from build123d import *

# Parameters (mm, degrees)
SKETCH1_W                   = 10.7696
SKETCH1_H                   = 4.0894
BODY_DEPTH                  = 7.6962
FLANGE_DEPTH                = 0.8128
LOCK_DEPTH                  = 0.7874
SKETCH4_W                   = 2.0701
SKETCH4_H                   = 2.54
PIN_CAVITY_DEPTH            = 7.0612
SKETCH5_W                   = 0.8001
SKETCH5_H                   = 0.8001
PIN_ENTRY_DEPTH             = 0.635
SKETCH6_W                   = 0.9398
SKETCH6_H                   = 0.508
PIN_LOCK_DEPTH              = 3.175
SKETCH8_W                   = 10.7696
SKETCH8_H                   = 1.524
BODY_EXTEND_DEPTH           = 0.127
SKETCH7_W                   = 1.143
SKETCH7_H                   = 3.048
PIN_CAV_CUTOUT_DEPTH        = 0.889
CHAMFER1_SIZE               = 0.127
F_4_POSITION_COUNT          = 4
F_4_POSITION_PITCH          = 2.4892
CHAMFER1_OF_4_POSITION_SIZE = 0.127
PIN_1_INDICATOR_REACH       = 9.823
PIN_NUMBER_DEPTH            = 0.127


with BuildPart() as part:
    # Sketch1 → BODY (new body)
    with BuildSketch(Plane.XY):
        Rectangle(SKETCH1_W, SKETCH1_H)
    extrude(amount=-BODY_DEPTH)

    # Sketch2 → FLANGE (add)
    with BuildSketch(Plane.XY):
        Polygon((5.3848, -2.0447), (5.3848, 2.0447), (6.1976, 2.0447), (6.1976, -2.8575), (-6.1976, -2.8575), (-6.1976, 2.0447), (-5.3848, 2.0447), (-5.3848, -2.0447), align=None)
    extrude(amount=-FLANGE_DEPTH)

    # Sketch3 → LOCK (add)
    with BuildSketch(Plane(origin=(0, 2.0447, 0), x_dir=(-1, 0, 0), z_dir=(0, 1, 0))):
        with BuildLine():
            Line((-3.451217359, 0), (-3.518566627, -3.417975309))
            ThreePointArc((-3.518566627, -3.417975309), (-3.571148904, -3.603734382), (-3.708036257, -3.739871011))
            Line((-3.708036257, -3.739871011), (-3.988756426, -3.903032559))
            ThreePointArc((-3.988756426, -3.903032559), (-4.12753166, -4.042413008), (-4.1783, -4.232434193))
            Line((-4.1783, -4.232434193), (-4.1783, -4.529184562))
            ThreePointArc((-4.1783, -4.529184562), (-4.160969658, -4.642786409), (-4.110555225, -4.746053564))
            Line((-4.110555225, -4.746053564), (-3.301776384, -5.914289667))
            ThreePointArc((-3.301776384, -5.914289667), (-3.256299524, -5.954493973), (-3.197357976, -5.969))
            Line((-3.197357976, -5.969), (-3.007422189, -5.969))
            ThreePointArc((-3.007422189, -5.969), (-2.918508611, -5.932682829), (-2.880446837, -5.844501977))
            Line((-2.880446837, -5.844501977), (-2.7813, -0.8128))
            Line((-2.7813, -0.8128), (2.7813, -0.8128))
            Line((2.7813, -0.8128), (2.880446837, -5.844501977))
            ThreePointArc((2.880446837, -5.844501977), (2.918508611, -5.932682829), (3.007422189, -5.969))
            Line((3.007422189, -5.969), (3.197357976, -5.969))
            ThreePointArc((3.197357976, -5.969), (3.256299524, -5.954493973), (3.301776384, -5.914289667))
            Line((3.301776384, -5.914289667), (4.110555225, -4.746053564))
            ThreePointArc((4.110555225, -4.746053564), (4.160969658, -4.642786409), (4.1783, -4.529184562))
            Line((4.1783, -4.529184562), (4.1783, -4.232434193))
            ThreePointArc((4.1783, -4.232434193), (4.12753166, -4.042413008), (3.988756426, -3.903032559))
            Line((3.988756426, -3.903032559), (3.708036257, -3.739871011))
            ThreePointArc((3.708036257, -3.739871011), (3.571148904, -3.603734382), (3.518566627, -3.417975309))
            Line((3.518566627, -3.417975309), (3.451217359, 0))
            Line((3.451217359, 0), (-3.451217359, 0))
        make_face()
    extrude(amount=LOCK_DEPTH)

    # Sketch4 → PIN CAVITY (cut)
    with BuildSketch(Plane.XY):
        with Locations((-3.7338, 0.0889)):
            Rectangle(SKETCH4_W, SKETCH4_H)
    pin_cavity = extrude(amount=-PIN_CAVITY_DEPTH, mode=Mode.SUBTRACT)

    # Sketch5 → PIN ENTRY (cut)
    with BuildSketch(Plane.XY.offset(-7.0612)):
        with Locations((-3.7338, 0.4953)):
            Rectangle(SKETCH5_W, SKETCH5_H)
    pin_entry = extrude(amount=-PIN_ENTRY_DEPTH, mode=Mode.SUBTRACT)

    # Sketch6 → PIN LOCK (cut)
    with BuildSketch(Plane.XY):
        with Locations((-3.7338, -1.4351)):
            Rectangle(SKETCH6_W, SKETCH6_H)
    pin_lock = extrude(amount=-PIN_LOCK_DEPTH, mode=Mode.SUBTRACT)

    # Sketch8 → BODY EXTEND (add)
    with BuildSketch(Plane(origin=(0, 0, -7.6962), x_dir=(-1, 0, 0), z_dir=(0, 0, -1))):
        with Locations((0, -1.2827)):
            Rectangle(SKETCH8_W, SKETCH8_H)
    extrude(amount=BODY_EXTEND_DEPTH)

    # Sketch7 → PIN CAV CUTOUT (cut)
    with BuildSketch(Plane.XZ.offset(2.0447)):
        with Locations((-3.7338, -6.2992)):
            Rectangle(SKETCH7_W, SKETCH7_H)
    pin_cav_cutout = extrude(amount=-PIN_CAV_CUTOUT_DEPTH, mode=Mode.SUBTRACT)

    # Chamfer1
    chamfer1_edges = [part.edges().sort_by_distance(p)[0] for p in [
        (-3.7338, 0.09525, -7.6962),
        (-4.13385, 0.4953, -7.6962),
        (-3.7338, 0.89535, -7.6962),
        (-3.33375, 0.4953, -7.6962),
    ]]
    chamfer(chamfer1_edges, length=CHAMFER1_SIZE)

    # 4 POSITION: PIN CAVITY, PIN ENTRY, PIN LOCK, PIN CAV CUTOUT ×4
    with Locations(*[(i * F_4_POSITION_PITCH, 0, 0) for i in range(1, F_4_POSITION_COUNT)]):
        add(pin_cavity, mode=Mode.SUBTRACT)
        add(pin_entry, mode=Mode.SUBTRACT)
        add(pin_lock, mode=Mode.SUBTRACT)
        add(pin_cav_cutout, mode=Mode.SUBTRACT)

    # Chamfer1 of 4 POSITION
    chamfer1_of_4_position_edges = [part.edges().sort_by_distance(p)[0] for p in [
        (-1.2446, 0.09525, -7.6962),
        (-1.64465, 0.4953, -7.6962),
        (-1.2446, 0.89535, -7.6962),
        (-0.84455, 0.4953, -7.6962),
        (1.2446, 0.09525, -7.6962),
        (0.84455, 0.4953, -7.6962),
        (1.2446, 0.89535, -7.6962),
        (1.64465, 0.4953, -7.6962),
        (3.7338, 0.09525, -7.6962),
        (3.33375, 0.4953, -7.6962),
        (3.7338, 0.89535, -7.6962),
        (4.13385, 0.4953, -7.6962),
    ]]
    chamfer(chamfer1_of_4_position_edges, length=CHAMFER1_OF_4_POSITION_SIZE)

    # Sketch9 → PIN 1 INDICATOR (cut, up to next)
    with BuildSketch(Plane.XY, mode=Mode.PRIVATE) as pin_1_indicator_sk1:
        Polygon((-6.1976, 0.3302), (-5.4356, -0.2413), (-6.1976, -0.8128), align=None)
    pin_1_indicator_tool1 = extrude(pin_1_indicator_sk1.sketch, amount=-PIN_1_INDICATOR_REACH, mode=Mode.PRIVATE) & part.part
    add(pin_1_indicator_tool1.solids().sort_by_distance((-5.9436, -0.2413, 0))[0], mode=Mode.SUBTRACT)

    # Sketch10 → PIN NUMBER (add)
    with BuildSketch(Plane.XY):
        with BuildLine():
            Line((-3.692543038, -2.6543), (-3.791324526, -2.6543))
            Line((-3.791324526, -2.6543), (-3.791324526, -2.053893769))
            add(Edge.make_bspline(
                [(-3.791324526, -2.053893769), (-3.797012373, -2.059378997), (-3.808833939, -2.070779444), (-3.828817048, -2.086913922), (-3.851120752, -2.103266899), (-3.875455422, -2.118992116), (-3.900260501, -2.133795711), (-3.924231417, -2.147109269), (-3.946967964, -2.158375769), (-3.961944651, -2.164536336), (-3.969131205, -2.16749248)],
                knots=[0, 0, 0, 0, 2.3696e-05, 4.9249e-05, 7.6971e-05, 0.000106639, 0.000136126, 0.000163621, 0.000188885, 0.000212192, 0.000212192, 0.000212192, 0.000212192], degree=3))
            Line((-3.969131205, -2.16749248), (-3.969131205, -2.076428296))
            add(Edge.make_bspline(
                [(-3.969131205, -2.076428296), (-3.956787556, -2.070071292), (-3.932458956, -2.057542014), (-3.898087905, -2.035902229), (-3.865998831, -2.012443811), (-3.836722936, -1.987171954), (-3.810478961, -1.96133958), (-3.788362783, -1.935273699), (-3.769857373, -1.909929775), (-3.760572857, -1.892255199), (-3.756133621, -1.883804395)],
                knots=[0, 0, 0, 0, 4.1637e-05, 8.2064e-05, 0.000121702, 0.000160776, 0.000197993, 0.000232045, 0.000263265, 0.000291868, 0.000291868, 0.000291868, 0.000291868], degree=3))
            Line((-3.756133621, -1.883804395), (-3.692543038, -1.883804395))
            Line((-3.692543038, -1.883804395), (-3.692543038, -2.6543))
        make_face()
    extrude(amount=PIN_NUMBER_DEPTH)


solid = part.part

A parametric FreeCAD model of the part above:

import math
import FreeCAD as App
import Part
import Sketcher

V = App.Vector
Q = App.Units.Quantity


def edges_at(feature, points):
    """Names of the edges that pass closest to the given points."""
    edges = feature.Shape.Edges
    near = lambda p: min(range(len(edges)), key=lambda i: edges[i].distToShape(Part.Vertex(*p))[0])
    return sorted({f"Edge{near(p) + 1}" for p in points})

doc = App.newDocument("Part")
body = doc.addObject("PartDesign::Body", "Body")

# Sketch on XY plane
sketch1 = doc.addObject("Sketcher::SketchObject", "Sketch")
body.addObject(sketch1)
sketch1.AttachmentSupport = (doc.XY_Plane, [""])
sketch1.MapMode = "FlatFace"
sketch1.addGeometry([
    Part.LineSegment(V(-5.4, 2, 0), V(-5.4, -2, 0)),
    Part.LineSegment(V(-5.4, -2, 0), V(5.4, -2, 0)),
    Part.LineSegment(V(5.4, -2, 0), V(5.4, 2, 0)),
    Part.LineSegment(V(5.4, 2, 0), V(-5.4, 2, 0)),
], False)
sketch1.addConstraint([
    Sketcher.Constraint("Coincident", 0, 2, 1, 1),
    Sketcher.Constraint("Coincident", 1, 2, 2, 1),
    Sketcher.Constraint("Coincident", 2, 2, 3, 1),
    Sketcher.Constraint("Coincident", 3, 2, 0, 1),
    Sketcher.Constraint("Vertical", 0),
    Sketcher.Constraint("Horizontal", 1),
    Sketcher.Constraint("Vertical", 2),
    Sketcher.Constraint("Horizontal", 3),
    Sketcher.Constraint("Symmetric", 0, 2, 2, 2, -1, 1),
    Sketcher.Constraint("DistanceX", 1, 1, 1, 2, Q("0.424 in")),
    Sketcher.Constraint("DistanceY", 0, 2, 0, 1, Q("0.161 in")),
])
pad1 = doc.addObject("PartDesign::Pad", "Pad")
body.addObject(pad1)
pad1.Profile = sketch1
pad1.Length = Q("0.303 in")
pad1.Reversed = True

# Sketch on XY plane
sketch2 = doc.addObject("Sketcher::SketchObject", "Sketch001")
body.addObject(sketch2)
sketch2.AttachmentSupport = (doc.XY_Plane, [""])
sketch2.MapMode = "FlatFace"
sketch2.addGeometry([
    Part.LineSegment(V(5.4, 2, 0), V(5.4, -2, 0)),  # 0
    Part.LineSegment(V(5.4, -2, 0), V(-5.4, -2, 0)),  # 1
    Part.LineSegment(V(-5.4, -2, 0), V(-5.4, 2, 0)),  # 2
    Part.LineSegment(V(-5.4, 2, 0), V(-6.2, 2, 0)),  # 3
    Part.LineSegment(V(-6.2, 2, 0), V(-6.2, -2.9, 0)),  # 4
    Part.LineSegment(V(-6.2, -2.9, 0), V(6.2, -2.9, 0)),  # 5
    Part.LineSegment(V(6.2, -2.9, 0), V(6.2, 2, 0)),  # 6
    Part.LineSegment(V(6.2, 2, 0), V(5.4, 2, 0)),  # 7
], False)
sketch2.addConstraint([
    Sketcher.Constraint("Coincident", 0, 2, 1, 1),
    Sketcher.Constraint("Coincident", 1, 2, 2, 1),
    Sketcher.Constraint("Coincident", 2, 2, 3, 1),
    Sketcher.Constraint("Coincident", 3, 2, 4, 1),
    Sketcher.Constraint("Coincident", 4, 2, 5, 1),
    Sketcher.Constraint("Coincident", 5, 2, 6, 1),
    Sketcher.Constraint("Coincident", 6, 2, 7, 1),
    Sketcher.Constraint("Coincident", 7, 2, 0, 1),
    Sketcher.Constraint("Vertical", 0),
    Sketcher.Constraint("Horizontal", 1),
    Sketcher.Constraint("Vertical", 2),
    Sketcher.Constraint("Horizontal", 3),
    Sketcher.Constraint("Vertical", 4),
    Sketcher.Constraint("Horizontal", 5),
    Sketcher.Constraint("Vertical", 6),
    Sketcher.Constraint("Horizontal", 7),
    Sketcher.Constraint("Symmetric", 0, 2, 2, 2, -1, 1),
    Sketcher.Constraint("Symmetric", 3, 2, 6, 2, -2),
    Sketcher.Constraint("DistanceX", 1, 2, 1, 1, Q("0.424 in")),
    Sketcher.Constraint("DistanceX", 3, 2, 3, 1, Q("0.032 in")),
    Sketcher.Constraint("DistanceY", 0, 2, 0, 1, Q("0.161 in")),
    Sketcher.Constraint("DistanceY", 4, 2, 4, 1, Q("0.193 in")),
])
pad2 = doc.addObject("PartDesign::Pad", "Pad001")
body.addObject(pad2)
pad2.Profile = sketch2
pad2.Length = Q("0.032 in")
pad2.Reversed = True

# Sketch on XZ plane
sketch3 = doc.addObject("Sketcher::SketchObject", "Sketch002")
body.addObject(sketch3)
sketch3.AttachmentSupport = (doc.XZ_Plane, [""])
sketch3.MapMode = "FlatFace"
sketch3.AttachmentOffset = App.Placement(V(0, 0, -0.0805 * 25.4), App.Rotation())
sketch3.addGeometry([
    Part.LineSegment(V(3.45, 0, 0), V(3.52, -3.42, 0)),  # 0
    Part.ArcOfCircle(Part.Circle(V(3.9, -3.41, 0), V(0, 0, 1), 0.38), math.radians(-179), math.radians(-120)),  # 1
    Part.LineSegment(V(3.71, -3.74, 0), V(3.99, -3.9, 0)),  # 2
    Part.ArcOfCircle(Part.Circle(V(3.8, -4.23, 0), V(0, 0, 1), 0.38), math.radians(0), math.radians(60)),  # 3
    Part.LineSegment(V(4.18, -4.23, 0), V(4.18, -4.53, 0)),  # 4
    Part.ArcOfCircle(Part.Circle(V(3.8, -4.53, 0), V(0, 0, 1), 0.38), math.radians(-35), math.radians(0)),  # 5
    Part.LineSegment(V(4.11, -4.75, 0), V(3.3, -5.91, 0)),  # 6
    Part.ArcOfCircle(Part.Circle(V(3.2, -5.84, 0), V(0, 0, 1), 0.13), math.radians(-90), math.radians(-35)),  # 7
    Part.LineSegment(V(3.2, -5.97, 0), V(3.01, -5.97, 0)),  # 8
    Part.ArcOfCircle(Part.Circle(V(3.01, -5.84, 0), V(0, 0, 1), 0.13), math.radians(-179), math.radians(-90)),  # 9
    Part.LineSegment(V(2.88, -5.84, 0), V(2.78, -0.81, 0)),  # 10
    Part.LineSegment(V(2.78, -0.81, 0), V(-2.78, -0.81, 0)),  # 11
    Part.LineSegment(V(-2.78, -0.81, 0), V(-2.88, -5.84, 0)),  # 12
    Part.ArcOfCircle(Part.Circle(V(-3.01, -5.84, 0), V(0, 0, 1), 0.13), math.radians(-90), math.radians(-1)),  # 13
    Part.LineSegment(V(-3.01, -5.97, 0), V(-3.2, -5.97, 0)),  # 14
    Part.ArcOfCircle(Part.Circle(V(-3.2, -5.84, 0), V(0, 0, 1), 0.13), math.radians(-145), math.radians(-90)),  # 15
    Part.LineSegment(V(-3.3, -5.91, 0), V(-4.11, -4.75, 0)),  # 16
    Part.ArcOfCircle(Part.Circle(V(-3.8, -4.53, 0), V(0, 0, 1), 0.38), math.radians(-180), math.radians(-145)),  # 17
    Part.LineSegment(V(-4.18, -4.53, 0), V(-4.18, -4.23, 0)),  # 18
    Part.ArcOfCircle(Part.Circle(V(-3.8, -4.23, 0), V(0, 0, 1), 0.38), math.radians(120), math.radians(180)),  # 19
    Part.LineSegment(V(-3.99, -3.9, 0), V(-3.71, -3.74, 0)),  # 20
    Part.ArcOfCircle(Part.Circle(V(-3.9, -3.41, 0), V(0, 0, 1), 0.38), math.radians(-60), math.radians(-1)),  # 21
    Part.LineSegment(V(-3.52, -3.42, 0), V(-3.45, 0, 0)),  # 22
    Part.LineSegment(V(-3.45, 0, 0), V(3.45, 0, 0)),  # 23
], False)
sketch3.addConstraint([
    Sketcher.Constraint("Tangent", 0, 2, 1, 1),
    Sketcher.Constraint("Tangent", 1, 2, 2, 1),
    Sketcher.Constraint("Tangent", 2, 2, 3, 2),
    Sketcher.Constraint("Tangent", 3, 1, 4, 1),
    Sketcher.Constraint("Tangent", 4, 2, 5, 2),
    Sketcher.Constraint("Tangent", 5, 1, 6, 1),
    Sketcher.Constraint("Tangent", 6, 2, 7, 2),
    Sketcher.Constraint("Tangent", 7, 1, 8, 1),
    Sketcher.Constraint("Tangent", 8, 2, 9, 2),
    Sketcher.Constraint("Tangent", 9, 1, 10, 1),
    Sketcher.Constraint("Coincident", 10, 2, 11, 1),
    Sketcher.Constraint("Coincident", 11, 2, 12, 1),
    Sketcher.Constraint("Tangent", 12, 2, 13, 2),
    Sketcher.Constraint("Tangent", 13, 1, 14, 1),
    Sketcher.Constraint("Tangent", 14, 2, 15, 2),
    Sketcher.Constraint("Tangent", 15, 1, 16, 1),
    Sketcher.Constraint("Tangent", 16, 2, 17, 2),
    Sketcher.Constraint("Tangent", 17, 1, 18, 1),
    Sketcher.Constraint("Tangent", 18, 2, 19, 2),
    Sketcher.Constraint("Tangent", 19, 1, 20, 1),
    Sketcher.Constraint("Tangent", 20, 2, 21, 1),
    Sketcher.Constraint("Tangent", 21, 2, 22, 1),
    Sketcher.Constraint("Coincident", 22, 2, 23, 1),
    Sketcher.Constraint("Coincident", 23, 2, 0, 1),
    Sketcher.Constraint("Vertical", 4),
    Sketcher.Constraint("Horizontal", 8),
    Sketcher.Constraint("Horizontal", 11),
    Sketcher.Constraint("Horizontal", 14),
    Sketcher.Constraint("Vertical", 18),
    Sketcher.Constraint("Horizontal", 23),
    Sketcher.Constraint("Equal", 1, 3),
    Sketcher.Constraint("Equal", 3, 5),
    Sketcher.Constraint("Equal", 7, 9),
    Sketcher.Constraint("Equal", 9, 13),
    Sketcher.Constraint("Equal", 13, 15),
    Sketcher.Constraint("Equal", 5, 17),
    Sketcher.Constraint("Equal", 17, 19),
    Sketcher.Constraint("Equal", 19, 21),
    Sketcher.Constraint("Symmetric", 22, 2, 23, 2, -1, 1),
    Sketcher.Constraint("Symmetric", 9, 3, 13, 3, -2),
    Sketcher.Constraint("Symmetric", 5, 3, 17, 3, -2),
    Sketcher.Constraint("Symmetric", 1, 3, 21, 3, -2),
    Sketcher.Constraint("Parallel", 0, 10),
    Sketcher.Constraint("Parallel", 12, 22),
    Sketcher.Constraint("Horizontal", 3, 3, 19, 3),
    Sketcher.Constraint("Horizontal", 6, 2, 15, 1),
    Sketcher.Constraint("Radius", 1, Q("0.015 in")),
    Sketcher.Constraint("Radius", 7, Q("0.005 in")),
    Sketcher.Constraint("DistanceX", 11, 2, 11, 1, Q("0.219 in")),
    Sketcher.Constraint("DistanceY", 7, 3, -1, 1, Q("0.23 in")),
    Sketcher.Constraint("DistanceX", 10, 2, 3, 3, Q("0.04 in")),
    Sketcher.Constraint("DistanceY", 10, 2, -1, 1, Q("0.032 in")),
    Sketcher.Constraint("DistanceY", 4, 2, 4, 1, 0.29675),
    Sketcher.Constraint("DistanceY", 9, 1, -1, 1, 5.844502),
    Sketcher.Constraint("DistanceY", 1, 2, 1, 3, 0.329402),
    Sketcher.Constraint("DistanceX", 2, 2, 5, 1, 0.121799),
    Sketcher.Constraint("Distance", 0, 3.418639),
    Sketcher.Constraint("Distance", 6, 1.42088),
])
pad3 = doc.addObject("PartDesign::Pad", "Pad002")
body.addObject(pad3)
pad3.Profile = sketch3
pad3.Length = Q("0.031 in")
pad3.Reversed = True

# Sketch on XY plane
sketch4 = doc.addObject("Sketcher::SketchObject", "Sketch003")
body.addObject(sketch4)
sketch4.AttachmentSupport = (doc.XY_Plane, [""])
sketch4.MapMode = "FlatFace"
sketch4.addGeometry([
    Part.LineSegment(V(-4.8, 1.4, 0), V(-4.8, -1.2, 0)),
    Part.LineSegment(V(-4.8, -1.2, 0), V(-2.7, -1.2, 0)),
    Part.LineSegment(V(-2.7, -1.2, 0), V(-2.7, 1.4, 0)),
    Part.LineSegment(V(-2.7, 1.4, 0), V(-4.8, 1.4, 0)),
], False)
sketch4.addConstraint([
    Sketcher.Constraint("Coincident", 0, 2, 1, 1),
    Sketcher.Constraint("Coincident", 1, 2, 2, 1),
    Sketcher.Constraint("Coincident", 2, 2, 3, 1),
    Sketcher.Constraint("Coincident", 3, 2, 0, 1),
    Sketcher.Constraint("Vertical", 0),
    Sketcher.Constraint("Horizontal", 1),
    Sketcher.Constraint("Vertical", 2),
    Sketcher.Constraint("Horizontal", 3),
    Sketcher.Constraint("DistanceY", 0, 2, 0, 1, Q("0.1 in")),
    Sketcher.Constraint("DistanceX", 1, 1, 1, 2, Q("0.0815 in")),
    Sketcher.Constraint("DistanceY", 0, 2, -1, 1, Q("0.0465 in")),
    Sketcher.Constraint("DistanceX", 0, 2, -1, 1, 4.76885),
])
pocket1 = doc.addObject("PartDesign::Pocket", "Pocket")
body.addObject(pocket1)
pocket1.Profile = sketch4
pocket1.Length = Q("0.278 in")

# Sketch on XY plane
sketch5 = doc.addObject("Sketcher::SketchObject", "Sketch004")
body.addObject(sketch5)
sketch5.AttachmentSupport = (doc.XY_Plane, [""])
sketch5.MapMode = "FlatFace"
sketch5.AttachmentOffset = App.Placement(V(0, 0, -0.278 * 25.4), App.Rotation())
sketch5.addGeometry([
    Part.LineSegment(V(-4.1, 0.9, 0), V(-4.1, 0.1, 0)),
    Part.LineSegment(V(-4.1, 0.1, 0), V(-3.3, 0.1, 0)),
    Part.LineSegment(V(-3.3, 0.1, 0), V(-3.3, 0.9, 0)),
    Part.LineSegment(V(-3.3, 0.9, 0), V(-4.1, 0.9, 0)),
], False)
sketch5.addConstraint([
    Sketcher.Constraint("Coincident", 0, 2, 1, 1),
    Sketcher.Constraint("Coincident", 1, 2, 2, 1),
    Sketcher.Constraint("Coincident", 2, 2, 3, 1),
    Sketcher.Constraint("Coincident", 3, 2, 0, 1),
    Sketcher.Constraint("Vertical", 0),
    Sketcher.Constraint("Horizontal", 1),
    Sketcher.Constraint("Vertical", 2),
    Sketcher.Constraint("Horizontal", 3),
    Sketcher.Constraint("Equal", 3, 0),
    Sketcher.Constraint("DistanceX", 1, 1, 1, 2, Q("0.0315 in")),
    Sketcher.Constraint("DistanceX", 0, 2, -1, 1, 4.13385),
    Sketcher.Constraint("DistanceY", -1, 1, 0, 2, 0.09525),
])
pocket2 = doc.addObject("PartDesign::Pocket", "Pocket001")
body.addObject(pocket2)
pocket2.Profile = sketch5
pocket2.Length = Q("0.025 in")

# Sketch on XY plane
sketch6 = doc.addObject("Sketcher::SketchObject", "Sketch005")
body.addObject(sketch6)
sketch6.AttachmentSupport = (doc.XY_Plane, [""])
sketch6.MapMode = "FlatFace"
sketch6.addGeometry([
    Part.LineSegment(V(-4.2, -1.2, 0), V(-4.2, -1.7, 0)),
    Part.LineSegment(V(-4.2, -1.7, 0), V(-3.3, -1.7, 0)),
    Part.LineSegment(V(-3.3, -1.7, 0), V(-3.3, -1.2, 0)),
    Part.LineSegment(V(-3.3, -1.2, 0), V(-4.2, -1.2, 0)),
], False)
sketch6.addConstraint([
    Sketcher.Constraint("Coincident", 0, 2, 1, 1),
    Sketcher.Constraint("Coincident", 1, 2, 2, 1),
    Sketcher.Constraint("Coincident", 2, 2, 3, 1),
    Sketcher.Constraint("Coincident", 3, 2, 0, 1),
    Sketcher.Constraint("Vertical", 0),
    Sketcher.Constraint("Horizontal", 1),
    Sketcher.Constraint("Vertical", 2),
    Sketcher.Constraint("Horizontal", 3),
    Sketcher.Constraint("DistanceY", 0, 2, 0, 1, Q("0.02 in")),
    Sketcher.Constraint("DistanceX", 1, 1, 1, 2, Q("0.037 in")),
    Sketcher.Constraint("DistanceX", 0, 2, -1, 1, Q("0.1655 in")),
    Sketcher.Constraint("DistanceY", 0, 2, -1, 1, Q("0.0665 in")),
])
pocket3 = doc.addObject("PartDesign::Pocket", "Pocket002")
body.addObject(pocket3)
pocket3.Profile = sketch6
pocket3.Length = Q("0.125 in")

# Sketch on XY plane
sketch7 = doc.addObject("Sketcher::SketchObject", "Sketch006")
body.addObject(sketch7)
sketch7.AttachmentSupport = (doc.XY_Plane, [""])
sketch7.MapMode = "FlatFace"
sketch7.AttachmentOffset = App.Placement(V(0, 0, -0.303 * 25.4), App.Rotation())
sketch7.addGeometry([
    Part.LineSegment(V(5.4, -0.5, 0), V(5.4, -2, 0)),
    Part.LineSegment(V(5.4, -2, 0), V(-5.4, -2, 0)),
    Part.LineSegment(V(-5.4, -2, 0), V(-5.4, -0.5, 0)),
    Part.LineSegment(V(-5.4, -0.5, 0), V(5.4, -0.5, 0)),
], False)
sketch7.addConstraint([
    Sketcher.Constraint("Coincident", 0, 2, 1, 1),
    Sketcher.Constraint("Coincident", 1, 2, 2, 1),
    Sketcher.Constraint("Coincident", 2, 2, 3, 1),
    Sketcher.Constraint("Coincident", 3, 2, 0, 1),
    Sketcher.Constraint("Vertical", 0),
    Sketcher.Constraint("Horizontal", 1),
    Sketcher.Constraint("Vertical", 2),
    Sketcher.Constraint("Horizontal", 3),
    Sketcher.Constraint("DistanceY", 0, 2, 0, 1, Q("0.06 in")),
    Sketcher.Constraint("DistanceX", 1, 2, 1, 1, Q("0.424 in")),
    Sketcher.Constraint("DistanceX", -1, 1, 0, 2, Q("0.212 in")),
    Sketcher.Constraint("DistanceY", 0, 2, -1, 1, Q("0.0805 in")),
])
pad4 = doc.addObject("PartDesign::Pad", "Pad003")
body.addObject(pad4)
pad4.Profile = sketch7
pad4.Length = Q("0.005 in")
pad4.Reversed = True

# Sketch on XZ plane
sketch8 = doc.addObject("Sketcher::SketchObject", "Sketch007")
body.addObject(sketch8)
sketch8.AttachmentSupport = (doc.XZ_Plane, [""])
sketch8.MapMode = "FlatFace"
sketch8.AttachmentOffset = App.Placement(V(0, 0, 0.0805 * 25.4), App.Rotation())
sketch8.addGeometry([
    Part.LineSegment(V(-4.3, -4.8, 0), V(-4.3, -7.8, 0)),
    Part.LineSegment(V(-4.3, -7.8, 0), V(-3.2, -7.8, 0)),
    Part.LineSegment(V(-3.2, -7.8, 0), V(-3.2, -4.8, 0)),
    Part.LineSegment(V(-3.2, -4.8, 0), V(-4.3, -4.8, 0)),
], False)
sketch8.addConstraint([
    Sketcher.Constraint("Coincident", 0, 2, 1, 1),
    Sketcher.Constraint("Coincident", 1, 2, 2, 1),
    Sketcher.Constraint("Coincident", 2, 2, 3, 1),
    Sketcher.Constraint("Coincident", 3, 2, 0, 1),
    Sketcher.Constraint("Vertical", 0),
    Sketcher.Constraint("Horizontal", 1),
    Sketcher.Constraint("Vertical", 2),
    Sketcher.Constraint("Horizontal", 3),
    Sketcher.Constraint("DistanceY", 0, 2, 0, 1, Q("0.12 in")),
    Sketcher.Constraint("DistanceX", 1, 1, 1, 2, Q("0.045 in")),
    Sketcher.Constraint("DistanceY", 0, 2, -1, 1, Q("0.308 in")),
    Sketcher.Constraint("DistanceX", 0, 2, -1, 1, Q("0.1695 in")),
])
pocket4 = doc.addObject("PartDesign::Pocket", "Pocket003")
body.addObject(pocket4)
pocket4.Profile = sketch8
pocket4.Length = Q("0.035 in")
doc.recompute()

chamfer = doc.addObject("PartDesign::Chamfer", "Chamfer")
body.addObject(chamfer)
chamfer.Base = (pocket4, edges_at(pocket4, [
    (-3.734, 0.095, -7.696),
    (-4.134, 0.495, -7.696),
    (-3.734, 0.895, -7.696),
    (-3.334, 0.495, -7.696),
]))
chamfer.Size = Q("0.005 in")
doc.recompute()

linearpattern = doc.addObject("PartDesign::LinearPattern", "LinearPattern")
body.addObject(linearpattern)
linearpattern.Originals = [pocket1, pocket2, pocket3, pocket4]
linearpattern.Direction = (doc.X_Axis, [""])
linearpattern.Mode = "offset"
linearpattern.Offset = Q("0.098 in")
linearpattern.Occurrences = 4
body.Tip = linearpattern
doc.recompute()

chamfer2 = doc.addObject("PartDesign::Chamfer", "Chamfer001")
body.addObject(chamfer2)
chamfer2.Base = (linearpattern, edges_at(linearpattern, [
    (-1.245, 0.095, -7.696),
    (-1.645, 0.495, -7.696),
    (-1.245, 0.895, -7.696),
    (-0.845, 0.495, -7.696),
    (1.245, 0.095, -7.696),
    (0.845, 0.495, -7.696),
    (1.245, 0.895, -7.696),
    (1.645, 0.495, -7.696),
    (3.734, 0.095, -7.696),
    (3.334, 0.495, -7.696),
    (3.734, 0.895, -7.696),
    (4.134, 0.495, -7.696),
]))
chamfer2.Size = Q("0.005 in")

# Sketch on XY plane
sketch9 = doc.addObject("Sketcher::SketchObject", "Sketch008")
body.addObject(sketch9)
sketch9.AttachmentSupport = (doc.XY_Plane, [""])
sketch9.MapMode = "FlatFace"
sketch9.addGeometry([
    Part.LineSegment(V(-5.4, -0.2, 0), V(-6.2, 0.3, 0)),
    Part.LineSegment(V(-6.2, 0.3, 0), V(-6.2, -0.8, 0)),
    Part.LineSegment(V(-6.2, -0.8, 0), V(-5.4, -0.2, 0)),
], False)
sketch9.addConstraint([
    Sketcher.Constraint("Coincident", 0, 2, 1, 1),
    Sketcher.Constraint("Coincident", 1, 2, 2, 1),
    Sketcher.Constraint("Coincident", 2, 2, 0, 1),
    Sketcher.Constraint("Vertical", 1),
    Sketcher.Constraint("Equal", 0, 2),
    Sketcher.Constraint("DistanceY", 1, 2, 1, 1, Q("0.045 in")),
    Sketcher.Constraint("DistanceX", 0, 2, 2, 2, Q("0.03 in")),
    Sketcher.Constraint("DistanceX", 0, 2, -1, 1, Q("0.244 in")),
    Sketcher.Constraint("DistanceY", -1, 1, 0, 2, Q("0.013 in")),
])
pocket5 = doc.addObject("PartDesign::Pocket", "Pocket004")
body.addObject(pocket5)
pocket5.Profile = sketch9
pocket5.Type = "UpToFirst"

# Sketch on XY plane
sketch10 = doc.addObject("Sketcher::SketchObject", "Sketch009")
body.addObject(sketch10)
sketch10.AttachmentSupport = (doc.XY_Plane, [""])
sketch10.MapMode = "FlatFace"
sketch10.addGeometry([
    Part.LineSegment(V(-3.791325, -2.6543, 0), V(-3.692543, -2.6543, 0)),  # 0
    Part.LineSegment(V(-3.692543, -2.6543, 0), V(-3.692543, -1.883804, 0)),  # 1
    Part.LineSegment(V(-3.692543, -1.883804, 0), V(-3.756134, -1.883804, 0)),  # 2
    Part.BSplineCurve([V(-3.969131, -2.076428, 0), V(-3.956788, -2.070071, 0), V(-3.932459, -2.057542, 0), V(-3.898088, -2.035902, 0), V(-3.865999, -2.012444, 0), V(-3.836723, -1.987172, 0), V(-3.810479, -1.96134, 0), V(-3.788363, -1.935274, 0), V(-3.769857, -1.90993, 0), V(-3.760573, -1.892255, 0), V(-3.756134, -1.883804, 0)], [4, 1, 1, 1, 1, 1, 1, 1, 4], [0, 0.000041637, 0.000082064, 0.000121702, 0.000160776, 0.000197993, 0.000232045, 0.000263265, 0.000291868], False, 3, [1, 1, 1, 1, 1, 1, 1, 1, 1, 1, 1], False),  # 3
    Part.LineSegment(V(-3.969131, -2.076428, 0), V(-3.969131, -2.167492, 0)),  # 4
    Part.BSplineCurve([V(-3.791325, -2.053894, 0), V(-3.797012, -2.059379, 0), V(-3.808834, -2.070779, 0), V(-3.828817, -2.086914, 0), V(-3.851121, -2.103267, 0), V(-3.875455, -2.118992, 0), V(-3.900261, -2.133796, 0), V(-3.924231, -2.147109, 0), V(-3.946968, -2.158376, 0), V(-3.961945, -2.164536, 0), V(-3.969131, -2.167492, 0)], [4, 1, 1, 1, 1, 1, 1, 1, 4], [0, 0.000023696, 0.000049249, 0.000076971, 0.000106639, 0.000136126, 0.000163621, 0.000188885, 0.000212192], False, 3, [1, 1, 1, 1, 1, 1, 1, 1, 1, 1, 1], False),  # 5
    Part.LineSegment(V(-3.791325, -2.053894, 0), V(-3.791325, -2.6543, 0)),  # 6
], False)
sketch10.addConstraint([
    Sketcher.Constraint("Block", 3),
    Sketcher.Constraint("Block", 5),
    Sketcher.Constraint("Coincident", 0, 2, 1, 1),
    Sketcher.Constraint("Coincident", 1, 2, 2, 1),
    Sketcher.Constraint("Coincident", 2, 2, 3, 2),
    Sketcher.Constraint("Coincident", 3, 1, 4, 1),
    Sketcher.Constraint("Coincident", 4, 2, 5, 2),
    Sketcher.Constraint("Coincident", 5, 1, 6, 1),
    Sketcher.Constraint("Coincident", 6, 2, 0, 1),
    Sketcher.Constraint("Horizontal", 0),
    Sketcher.Constraint("Vertical", 1),
    Sketcher.Constraint("Horizontal", 2),
    Sketcher.Constraint("Vertical", 6),
    Sketcher.Constraint("DistanceY", 0, 2, -1, 1, Q("0.1045 in")),
    Sketcher.Constraint("DistanceX", 0, 1, 0, 2, 0.098781),
])
pad5 = doc.addObject("PartDesign::Pad", "Pad004")
body.addObject(pad5)
pad5.Profile = sketch10
pad5.Length = Q("0.005 in")

doc.recompute()
